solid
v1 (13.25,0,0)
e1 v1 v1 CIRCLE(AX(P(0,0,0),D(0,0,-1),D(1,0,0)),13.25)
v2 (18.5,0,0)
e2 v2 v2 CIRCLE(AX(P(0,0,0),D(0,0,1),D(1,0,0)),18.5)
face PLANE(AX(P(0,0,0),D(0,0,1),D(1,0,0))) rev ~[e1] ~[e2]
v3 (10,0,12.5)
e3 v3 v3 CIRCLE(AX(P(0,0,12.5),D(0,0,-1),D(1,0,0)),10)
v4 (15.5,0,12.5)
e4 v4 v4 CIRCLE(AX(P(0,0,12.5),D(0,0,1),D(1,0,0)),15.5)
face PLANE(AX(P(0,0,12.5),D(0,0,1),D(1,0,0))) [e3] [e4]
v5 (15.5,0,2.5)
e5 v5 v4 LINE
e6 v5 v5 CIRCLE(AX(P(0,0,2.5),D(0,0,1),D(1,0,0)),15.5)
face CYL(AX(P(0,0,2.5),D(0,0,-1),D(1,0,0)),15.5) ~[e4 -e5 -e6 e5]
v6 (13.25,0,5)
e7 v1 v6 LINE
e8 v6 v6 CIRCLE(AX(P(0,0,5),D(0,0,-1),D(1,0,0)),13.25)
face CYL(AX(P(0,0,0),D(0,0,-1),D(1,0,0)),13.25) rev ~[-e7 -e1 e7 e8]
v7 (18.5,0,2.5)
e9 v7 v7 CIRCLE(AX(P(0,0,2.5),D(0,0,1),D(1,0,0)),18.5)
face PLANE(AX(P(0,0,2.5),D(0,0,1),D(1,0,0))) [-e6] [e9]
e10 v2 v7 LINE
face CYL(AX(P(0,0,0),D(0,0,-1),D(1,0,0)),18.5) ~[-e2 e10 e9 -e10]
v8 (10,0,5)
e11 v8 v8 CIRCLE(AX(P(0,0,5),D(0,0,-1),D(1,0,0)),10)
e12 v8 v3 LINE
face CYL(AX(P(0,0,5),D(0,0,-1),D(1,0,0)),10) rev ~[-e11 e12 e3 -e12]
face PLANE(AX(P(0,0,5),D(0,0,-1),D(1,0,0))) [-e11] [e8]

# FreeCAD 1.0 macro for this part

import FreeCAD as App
import Part
import Sketcher
from FreeCAD import Vector
Q = App.Units.Quantity

doc = App.newDocument("Part")
body = doc.addObject("PartDesign::Body", "Body")

# Sketch on XY plane
sketch1 = doc.addObject("Sketcher::SketchObject", "Sketch")
body.addObject(sketch1)
sketch1.AttachmentSupport = (doc.XY_Plane, [""])
sketch1.MapMode = "FlatFace"
sketch1.addGeometry(Part.Circle(Vector(0, 0, 0), Vector(0, 0, 1), 18), False)
sketch1.addConstraint(Sketcher.Constraint("Coincident", 0, 3, -1, 1))
sketch1.addConstraint(Sketcher.Constraint("Diameter", 0, Q("37 mm")))
pad1 = doc.addObject("PartDesign::Pad", "Pad")
body.addObject(pad1)
pad1.Profile = sketch1
pad1.Length = 2.5

# Sketch on XY plane
sketch2 = doc.addObject("Sketcher::SketchObject", "Sketch001")
body.addObject(sketch2)
sketch2.AttachmentSupport = (doc.XY_Plane, [""])
sketch2.MapMode = "FlatFace"
sketch2.AttachmentOffset = App.Placement(Vector(0, 0, 2.5), App.Rotation())
sketch2.addGeometry(Part.Circle(Vector(0, 0, 0), Vector(0, 0, 1), 16), False)
sketch2.addConstraint(Sketcher.Constraint("Coincident", 0, 3, -1, 1))
sketch2.addConstraint(Sketcher.Constraint("Diameter", 0, Q("31 mm")))
pad2 = doc.addObject("PartDesign::Pad", "Pad001")
body.addObject(pad2)
pad2.Profile = sketch2
pad2.Length = 10

# Sketch on XY plane
sketch3 = doc.addObject("Sketcher::SketchObject", "Sketch002")
body.addObject(sketch3)
sketch3.AttachmentSupport = (doc.XY_Plane, [""])
sketch3.MapMode = "FlatFace"
sketch3.addGeometry(Part.Circle(Vector(0, 0, 0), Vector(0, 0, 1), 13), False)
sketch3.addConstraint(Sketcher.Constraint("Coincident", 0, 3, -1, 1))
sketch3.addConstraint(Sketcher.Constraint("Diameter", 0, Q("26.5 mm")))
pocket1 = doc.addObject("PartDesign::Pocket", "Pocket")
body.addObject(pocket1)
pocket1.Profile = sketch3
pocket1.Length = 5
pocket1.Reversed = True

# Sketch on XY plane
sketch4 = doc.addObject("Sketcher::SketchObject", "Sketch003")
body.addObject(sketch4)
sketch4.AttachmentSupport = (doc.XY_Plane, [""])
sketch4.MapMode = "FlatFace"
sketch4.AttachmentOffset = App.Placement(Vector(0, 0, 5), App.Rotation())
sketch4.addGeometry(Part.Circle(Vector(0, 0, 0), Vector(0, 0, 1), 10), False)
sketch4.addConstraint(Sketcher.Constraint("Coincident", 0, 3, -1, 1))
sketch4.addConstraint(Sketcher.Constraint("Diameter", 0, Q("20 mm")))
pocket2 = doc.addObject("PartDesign::Pocket", "Pocket001")
body.addObject(pocket2)
pocket2.Profile = sketch4
pocket2.Type = "ThroughAll"
pocket2.Reversed = True

doc.recompute()
